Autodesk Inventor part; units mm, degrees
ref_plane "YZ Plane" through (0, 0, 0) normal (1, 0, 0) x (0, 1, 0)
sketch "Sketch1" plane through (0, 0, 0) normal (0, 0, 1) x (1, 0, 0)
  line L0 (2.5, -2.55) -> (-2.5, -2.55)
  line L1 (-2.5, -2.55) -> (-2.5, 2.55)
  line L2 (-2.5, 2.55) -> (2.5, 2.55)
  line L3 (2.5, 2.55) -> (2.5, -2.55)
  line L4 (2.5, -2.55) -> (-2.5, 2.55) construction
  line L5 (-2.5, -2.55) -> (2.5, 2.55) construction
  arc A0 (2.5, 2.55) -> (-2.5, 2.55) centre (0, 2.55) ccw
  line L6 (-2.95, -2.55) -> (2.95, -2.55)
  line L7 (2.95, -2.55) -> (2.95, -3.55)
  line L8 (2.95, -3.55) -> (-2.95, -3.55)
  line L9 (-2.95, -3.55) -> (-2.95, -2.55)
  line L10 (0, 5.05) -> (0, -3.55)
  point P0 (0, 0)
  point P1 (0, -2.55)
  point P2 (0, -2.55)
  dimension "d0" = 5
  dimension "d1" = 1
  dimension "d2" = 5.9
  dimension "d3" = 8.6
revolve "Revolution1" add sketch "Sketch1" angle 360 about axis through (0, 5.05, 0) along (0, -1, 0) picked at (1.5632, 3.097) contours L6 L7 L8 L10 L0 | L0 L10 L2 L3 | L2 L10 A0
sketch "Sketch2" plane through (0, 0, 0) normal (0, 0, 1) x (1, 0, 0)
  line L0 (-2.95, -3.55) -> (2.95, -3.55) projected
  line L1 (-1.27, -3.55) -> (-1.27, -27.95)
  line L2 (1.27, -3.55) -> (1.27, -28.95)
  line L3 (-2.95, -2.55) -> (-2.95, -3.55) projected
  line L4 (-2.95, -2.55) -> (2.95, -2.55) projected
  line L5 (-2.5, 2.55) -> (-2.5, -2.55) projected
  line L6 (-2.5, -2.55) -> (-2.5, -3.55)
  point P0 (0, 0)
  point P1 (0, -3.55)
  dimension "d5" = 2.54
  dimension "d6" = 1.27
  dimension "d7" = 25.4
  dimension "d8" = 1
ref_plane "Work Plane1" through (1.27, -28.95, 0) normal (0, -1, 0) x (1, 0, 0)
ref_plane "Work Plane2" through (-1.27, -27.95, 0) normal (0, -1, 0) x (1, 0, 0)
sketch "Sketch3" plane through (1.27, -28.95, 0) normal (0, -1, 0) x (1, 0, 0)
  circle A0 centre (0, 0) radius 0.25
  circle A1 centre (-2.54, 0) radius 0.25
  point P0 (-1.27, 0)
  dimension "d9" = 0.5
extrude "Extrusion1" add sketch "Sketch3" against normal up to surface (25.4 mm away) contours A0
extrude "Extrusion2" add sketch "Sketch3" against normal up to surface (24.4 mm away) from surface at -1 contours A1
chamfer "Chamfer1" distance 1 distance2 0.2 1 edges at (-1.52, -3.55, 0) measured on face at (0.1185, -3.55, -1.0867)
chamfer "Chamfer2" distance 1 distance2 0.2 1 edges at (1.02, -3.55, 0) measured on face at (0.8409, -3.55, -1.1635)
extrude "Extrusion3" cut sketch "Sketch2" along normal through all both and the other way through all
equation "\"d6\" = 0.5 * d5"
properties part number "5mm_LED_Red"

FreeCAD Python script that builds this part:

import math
import FreeCAD as App
import Part
import Sketcher
from FreeCAD import Vector
Q = App.Units.Quantity


def edges_at(feature, points):
    """Names of the edges that pass closest to the given points."""
    edges = feature.Shape.Edges
    near = lambda p: min(range(len(edges)), key=lambda i: edges[i].distToShape(Part.Vertex(*p))[0])
    return sorted({f"Edge{near(p) + 1}" for p in points})

doc = App.newDocument("Part")
params = doc.addObject("Spreadsheet::Sheet", "Params")
for row, (alias, value) in enumerate([
    ("sketch1_radius", "2.5 mm"),
    ("sketch1_height", "1 mm"),
    ("sketch1_height2", "8.6 mm"),
    ("sketch1_width", "0.45 mm"),
    ("revolution_angle", "360 deg"),
    ("sketch2_diameter", "0.5 mm"),
    ("pad1_length", "25.4 mm"),
    ("sketch3_diameter", "0.5 mm"),
    ("pad2_length", "24.4 mm"),
    ("chamfer_size", "1 mm"),
    ("chamfer_size2", "0.2 mm"),
    ("chamfer2_size", "1 mm"),
    ("chamfer2_size2", "0.2 mm"),
    ("sketch4_height", "1 mm"),
    ("sketch4_width", "0.45 mm"),
], start=1):
    params.set(f"A{row}", alias)
    params.set(f"B{row}", "=" + value)
    params.setAlias(f"B{row}", alias)

body = doc.addObject("PartDesign::Body", "Body")

# Sketch on XY plane
sketch1 = body.newObject("Sketcher::SketchObject", "Sketch")
sketch1.AttachmentSupport = (doc.getObject("XY_Plane"), [""])
sketch1.MapMode = "FlatFace"
sketch1.addGeometry([
    Part.LineSegment(Vector(2.95, -2.55, 0), Vector(2.5, -2.55, 0)),  # 0
    Part.LineSegment(Vector(2.5, -2.55, 0), Vector(2.5, 2.55, 0)),  # 1
    Part.ArcOfCircle(Part.Circle(Vector(0, 2.55, 0), Vector(0, 0, 1), 2.5), math.radians(0), math.radians(90)),  # 2
    Part.LineSegment(Vector(0, 5.05, 0), Vector(0, -3.55, 0)),  # 3
    Part.LineSegment(Vector(0, -3.55, 0), Vector(2.95, -3.55, 0)),  # 4
    Part.LineSegment(Vector(2.95, -3.55, 0), Vector(2.95, -2.55, 0)),  # 5
], False)
sketch1.addConstraint([
    Sketcher.Constraint("Coincident", 0, 2, 1, 1),
    Sketcher.Constraint("Tangent", 1, 2, 2, 1),
    Sketcher.Constraint("Coincident", 2, 2, 3, 1),
    Sketcher.Constraint("Coincident", 3, 2, 4, 1),
    Sketcher.Constraint("Coincident", 4, 2, 5, 1),
    Sketcher.Constraint("Coincident", 5, 2, 0, 1),
    Sketcher.Constraint("Horizontal", 0),
    Sketcher.Constraint("Vertical", 1),
    Sketcher.Constraint("Vertical", 3),
    Sketcher.Constraint("Horizontal", 4),
    Sketcher.Constraint("Vertical", 5),
    Sketcher.Constraint("PointOnObject", 2, 3, -2),
    Sketcher.Constraint("PointOnObject", 2, 2, -2),
    Sketcher.Constraint("Radius", 2, Q("2.5 mm")),
    Sketcher.Constraint("DistanceY", 5, 1, 5, 2, Q("1 mm")),
    Sketcher.Constraint("DistanceY", 3, 2, 3, 1, Q("8.6 mm")),
    Sketcher.Constraint("DistanceX", 0, 2, 0, 1, Q("0.45 mm")),
    Sketcher.Constraint("DistanceY", -1, 1, 2, 3, Q("2.55 mm")),
])
sketch1.setExpression("Constraints[13]", "Params.sketch1_radius")
sketch1.setExpression("Constraints[14]", "Params.sketch1_height")
sketch1.setExpression("Constraints[15]", "Params.sketch1_height2")
sketch1.setExpression("Constraints[16]", "Params.sketch1_width")
revolution = body.newObject("PartDesign::Revolution", "Revolution")
revolution.Profile = sketch1
revolution.ReferenceAxis = (sketch1, ["V_Axis"])
revolution.setExpression("Angle", "Params.revolution_angle")

# Sketch on XZ plane
sketch2 = body.newObject("Sketcher::SketchObject", "Sketch001")
sketch2.AttachmentSupport = (doc.getObject("XZ_Plane"), [""])
sketch2.MapMode = "FlatFace"
sketch2.AttachmentOffset = App.Placement(Vector(0, 0, 28.95), App.Rotation())
sketch2.addGeometry(Part.Circle(Vector(1.27, 0, 0), Vector(0, 0, 1), 0.25), False)
sketch2.addConstraint([
    Sketcher.Constraint("PointOnObject", 0, 3, -1),
    Sketcher.Constraint("Diameter", 0, Q("0.5 mm")),
    Sketcher.Constraint("DistanceX", -1, 1, 0, 3, Q("1.27 mm")),
])
sketch2.setExpression("Constraints[1]", "Params.sketch2_diameter")
pad1 = body.newObject("PartDesign::Pad", "Pad")
pad1.Profile = sketch2
pad1.setExpression("Length", "Params.pad1_length")
pad1.Reversed = True

# Sketch on XZ plane
sketch3 = body.newObject("Sketcher::SketchObject", "Sketch002")
sketch3.AttachmentSupport = (doc.getObject("XZ_Plane"), [""])
sketch3.MapMode = "FlatFace"
sketch3.AttachmentOffset = App.Placement(Vector(0, 0, 27.95), App.Rotation())
sketch3.addGeometry(Part.Circle(Vector(-1.27, 0, 0), Vector(0, 0, 1), 0.25), False)
sketch3.addConstraint([
    Sketcher.Constraint("PointOnObject", 0, 3, -1),
    Sketcher.Constraint("Diameter", 0, Q("0.5 mm")),
    Sketcher.Constraint("DistanceX", 0, 3, -1, 1, Q("1.27 mm")),
])
sketch3.setExpression("Constraints[1]", "Params.sketch3_diameter")
pad2 = body.newObject("PartDesign::Pad", "Pad001")
pad2.Profile = sketch3
pad2.setExpression("Length", "Params.pad2_length")
pad2.Reversed = True
doc.recompute()

chamfer = body.newObject("PartDesign::Chamfer", "Chamfer")
chamfer.Base = (pad2, edges_at(pad2, [(-1.52, -3.55, 0)]))
chamfer.ChamferType = "Two distances"
chamfer.setExpression("Size", "Params.chamfer_size")
chamfer.setExpression("Size2", "Params.chamfer_size2")
doc.recompute()

chamfer2 = body.newObject("PartDesign::Chamfer", "Chamfer001")
chamfer2.Base = (chamfer, edges_at(chamfer, [(1.02, -3.55, 0)]))
chamfer2.ChamferType = "Two distances"
chamfer2.setExpression("Size", "Params.chamfer2_size")
chamfer2.setExpression("Size2", "Params.chamfer2_size2")

# Sketch on XY plane
sketch4 = body.newObject("Sketcher::SketchObject", "Sketch003")
sketch4.AttachmentSupport = (doc.getObject("XY_Plane"), [""])
sketch4.MapMode = "FlatFace"
sketch4.addGeometry([
    Part.LineSegment(Vector(-2.95, -2.55, 0), Vector(-2.95, -3.55, 0)),
    Part.LineSegment(Vector(-2.95, -3.55, 0), Vector(-2.5, -3.55, 0)),
    Part.LineSegment(Vector(-2.5, -3.55, 0), Vector(-2.5, -2.55, 0)),
    Part.LineSegment(Vector(-2.5, -2.55, 0), Vector(-2.95, -2.55, 0)),
], False)
sketch4.addConstraint([
    Sketcher.Constraint("Coincident", 0, 2, 1, 1),
    Sketcher.Constraint("Coincident", 1, 2, 2, 1),
    Sketcher.Constraint("Coincident", 2, 2, 3, 1),
    Sketcher.Constraint("Coincident", 3, 2, 0, 1),
    Sketcher.Constraint("Vertical", 0),
    Sketcher.Constraint("Horizontal", 1),
    Sketcher.Constraint("Vertical", 2),
    Sketcher.Constraint("Horizontal", 3),
    Sketcher.Constraint("DistanceY", 0, 2, 0, 1, Q("1 mm")),
    Sketcher.Constraint("DistanceX", 1, 1, 1, 2, Q("0.45 mm")),
    Sketcher.Constraint("DistanceX", 1, 2, -1, 1, Q("2.5 mm")),
    Sketcher.Constraint("DistanceY", 0, 2, -1, 1, Q("3.55 mm")),
])
sketch4.setExpression("Constraints[8]", "Params.sketch4_height")
sketch4.setExpression("Constraints[9]", "Params.sketch4_width")
pocket1 = body.newObject("PartDesign::Pocket", "Pocket")
pocket1.Profile = sketch4
pocket1.Type = "ThroughAll"
pocket1.Midplane = True

doc.recompute()
